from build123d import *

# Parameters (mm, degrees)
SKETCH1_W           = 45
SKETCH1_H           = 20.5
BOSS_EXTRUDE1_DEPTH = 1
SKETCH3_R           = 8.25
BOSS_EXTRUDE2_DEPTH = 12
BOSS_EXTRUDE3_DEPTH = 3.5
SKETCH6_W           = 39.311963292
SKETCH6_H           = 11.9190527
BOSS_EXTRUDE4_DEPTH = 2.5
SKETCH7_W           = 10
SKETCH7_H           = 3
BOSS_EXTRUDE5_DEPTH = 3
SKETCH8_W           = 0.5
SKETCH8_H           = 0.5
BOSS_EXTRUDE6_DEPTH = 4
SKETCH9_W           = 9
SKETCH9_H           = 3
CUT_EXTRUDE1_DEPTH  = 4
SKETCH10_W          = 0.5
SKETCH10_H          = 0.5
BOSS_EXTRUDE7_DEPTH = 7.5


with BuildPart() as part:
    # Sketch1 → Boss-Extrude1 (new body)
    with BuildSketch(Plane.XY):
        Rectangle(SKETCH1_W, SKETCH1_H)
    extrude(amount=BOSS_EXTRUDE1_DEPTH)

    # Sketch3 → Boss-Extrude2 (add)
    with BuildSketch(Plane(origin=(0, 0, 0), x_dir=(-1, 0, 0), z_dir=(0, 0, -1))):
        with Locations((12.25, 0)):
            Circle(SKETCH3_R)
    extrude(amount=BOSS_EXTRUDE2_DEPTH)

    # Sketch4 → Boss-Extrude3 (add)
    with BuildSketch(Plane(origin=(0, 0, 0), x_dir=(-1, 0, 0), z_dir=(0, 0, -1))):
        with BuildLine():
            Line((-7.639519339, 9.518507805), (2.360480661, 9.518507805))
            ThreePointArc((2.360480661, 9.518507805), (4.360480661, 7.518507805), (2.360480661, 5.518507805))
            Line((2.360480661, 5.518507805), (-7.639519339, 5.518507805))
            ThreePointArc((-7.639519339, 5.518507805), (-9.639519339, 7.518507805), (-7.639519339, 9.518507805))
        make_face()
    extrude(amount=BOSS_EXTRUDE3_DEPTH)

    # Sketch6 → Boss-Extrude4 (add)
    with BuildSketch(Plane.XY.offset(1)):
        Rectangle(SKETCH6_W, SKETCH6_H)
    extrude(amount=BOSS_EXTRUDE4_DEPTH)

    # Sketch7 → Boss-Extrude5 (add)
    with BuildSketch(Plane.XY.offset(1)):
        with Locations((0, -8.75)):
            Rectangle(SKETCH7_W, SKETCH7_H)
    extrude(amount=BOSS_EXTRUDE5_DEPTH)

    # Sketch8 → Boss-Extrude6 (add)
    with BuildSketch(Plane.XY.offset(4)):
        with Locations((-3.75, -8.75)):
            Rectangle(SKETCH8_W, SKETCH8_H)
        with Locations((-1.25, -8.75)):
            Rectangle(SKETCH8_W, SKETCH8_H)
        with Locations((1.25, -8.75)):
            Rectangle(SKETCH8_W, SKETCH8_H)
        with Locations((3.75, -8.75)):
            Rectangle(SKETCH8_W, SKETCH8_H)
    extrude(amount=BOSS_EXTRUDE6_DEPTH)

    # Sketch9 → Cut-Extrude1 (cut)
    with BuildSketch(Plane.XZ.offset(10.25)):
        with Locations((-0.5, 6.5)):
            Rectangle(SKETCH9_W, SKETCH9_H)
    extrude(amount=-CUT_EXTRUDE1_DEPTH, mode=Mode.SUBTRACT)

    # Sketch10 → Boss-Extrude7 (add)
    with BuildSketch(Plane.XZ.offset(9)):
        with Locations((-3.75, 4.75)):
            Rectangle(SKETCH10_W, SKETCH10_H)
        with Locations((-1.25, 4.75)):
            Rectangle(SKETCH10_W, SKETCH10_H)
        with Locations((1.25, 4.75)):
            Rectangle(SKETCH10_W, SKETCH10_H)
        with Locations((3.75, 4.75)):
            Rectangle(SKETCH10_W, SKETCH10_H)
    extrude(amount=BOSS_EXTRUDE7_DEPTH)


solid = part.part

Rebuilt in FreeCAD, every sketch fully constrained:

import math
import FreeCAD as App
import Part
import Sketcher

V = App.Vector
Q = App.Units.Quantity

doc = App.newDocument("Part")
body = doc.addObject("PartDesign::Body", "Body")

sketch1 = body.newObject("Sketcher::SketchObject", "Sketch")
sketch1.AttachmentSupport = (doc.getObject("XY_Plane"), [""])
sketch1.MapMode = "FlatFace"
sketch1.addGeometry(Part.LineSegment(V(-22.5, 10.25, 0), V(-22.5, -10.25, 0)), False)
sketch1.addGeometry(Part.LineSegment(V(-22.5, -10.25, 0), V(22.5, -10.25, 0)), False)
sketch1.addGeometry(Part.LineSegment(V(22.5, -10.25, 0), V(22.5, 10.25, 0)), False)
sketch1.addGeometry(Part.LineSegment(V(22.5, 10.25, 0), V(-22.5, 10.25, 0)), False)
sketch1.addConstraint(Sketcher.Constraint("Coincident", 0, 2, 1, 1))
sketch1.addConstraint(Sketcher.Constraint("Coincident", 1, 2, 2, 1))
sketch1.addConstraint(Sketcher.Constraint("Coincident", 2, 2, 3, 1))
sketch1.addConstraint(Sketcher.Constraint("Coincident", 3, 2, 0, 1))
sketch1.addConstraint(Sketcher.Constraint("Vertical", 0))
sketch1.addConstraint(Sketcher.Constraint("Horizontal", 1))
sketch1.addConstraint(Sketcher.Constraint("Vertical", 2))
sketch1.addConstraint(Sketcher.Constraint("Horizontal", 3))
sketch1.addConstraint(Sketcher.Constraint("Symmetric", 0, 2, 2, 2, -1, 1))
sketch1.addConstraint(Sketcher.Constraint("DistanceX", 1, 1, 1, 2, Q("45 mm")))
sketch1.addConstraint(Sketcher.Constraint("DistanceY", 0, 2, 0, 1, Q("20.5 mm")))
pad1 = body.newObject("PartDesign::Pad", "Pad")
pad1.Profile = sketch1
pad1.Length = 1

sketch2 = body.newObject("Sketcher::SketchObject", "Sketch001")
sketch2.AttachmentSupport = (doc.getObject("XY_Plane"), [""])
sketch2.MapMode = "FlatFace"
sketch2.addGeometry(Part.Circle(V(-12.25, 0, 0), V(0, 0, 1), 8.25), False)
sketch2.addConstraint(Sketcher.Constraint("PointOnObject", 0, 3, -1))
sketch2.addConstraint(Sketcher.Constraint("Diameter", 0, Q("16.5 mm")))
sketch2.addConstraint(Sketcher.Constraint("DistanceX", 0, 3, -1, 1, Q("12.25 mm")))
pad2 = body.newObject("PartDesign::Pad", "Pad001")
pad2.Profile = sketch2
pad2.Length = 12
pad2.Reversed = True

sketch3 = body.newObject("Sketcher::SketchObject", "Sketch002")
sketch3.AttachmentSupport = (doc.getObject("XY_Plane"), [""])
sketch3.MapMode = "FlatFace"
sketch3.addGeometry(Part.LineSegment(V(-2.360481, 9.518508, 0), V(7.639519, 9.518508, 0)), False)
sketch3.addGeometry(Part.ArcOfCircle(Part.Circle(V(7.639519, 7.518508, 0), V(0, 0, 1), 2), math.radians(-90), math.radians(90)), False)
sketch3.addGeometry(Part.LineSegment(V(7.639519, 5.518508, 0), V(-2.360481, 5.518508, 0)), False)
sketch3.addGeometry(Part.ArcOfCircle(Part.Circle(V(-2.360481, 7.518508, 0), V(0, 0, 1), 2), math.radians(90), math.radians(270)), False)
sketch3.addConstraint(Sketcher.Constraint("Tangent", 0, 2, 1, 2))
sketch3.addConstraint(Sketcher.Constraint("Tangent", 1, 1, 2, 1))
sketch3.addConstraint(Sketcher.Constraint("Tangent", 2, 2, 3, 2))
sketch3.addConstraint(Sketcher.Constraint("Tangent", 3, 1, 0, 1))
sketch3.addConstraint(Sketcher.Constraint("Horizontal", 0))
sketch3.addConstraint(Sketcher.Constraint("Horizontal", 2))
sketch3.addConstraint(Sketcher.Constraint("Radius", 1, Q("2 mm")))
sketch3.addConstraint(Sketcher.Constraint("DistanceX", 0, 1, 0, 2, Q("10 mm")))
sketch3.addConstraint(Sketcher.Constraint("DistanceX", -1, 1, 1, 3, Q("7.639519 mm")))
sketch3.addConstraint(Sketcher.Constraint("DistanceY", -1, 1, 1, 3, Q("7.518508 mm")))
pad3 = body.newObject("PartDesign::Pad", "Pad002")
pad3.Profile = sketch3
pad3.Length = 3.5
pad3.Reversed = True

sketch4 = body.newObject("Sketcher::SketchObject", "Sketch003")
sketch4.AttachmentSupport = (doc.getObject("XY_Plane"), [""])
sketch4.MapMode = "FlatFace"
sketch4.AttachmentOffset = App.Placement(V(0, 0, 1), App.Rotation())
sketch4.addGeometry(Part.LineSegment(V(-19.655982, 5.959526, 0), V(-19.655982, -5.959526, 0)), False)
sketch4.addGeometry(Part.LineSegment(V(-19.655982, -5.959526, 0), V(19.655982, -5.959526, 0)), False)
sketch4.addGeometry(Part.LineSegment(V(19.655982, -5.959526, 0), V(19.655982, 5.959526, 0)), False)
sketch4.addGeometry(Part.LineSegment(V(19.655982, 5.959526, 0), V(-19.655982, 5.959526, 0)), False)
sketch4.addConstraint(Sketcher.Constraint("Coincident", 0, 2, 1, 1))
sketch4.addConstraint(Sketcher.Constraint("Coincident", 1, 2, 2, 1))
sketch4.addConstraint(Sketcher.Constraint("Coincident", 2, 2, 3, 1))
sketch4.addConstraint(Sketcher.Constraint("Coincident", 3, 2, 0, 1))
sketch4.addConstraint(Sketcher.Constraint("Vertical", 0))
sketch4.addConstraint(Sketcher.Constraint("Horizontal", 1))
sketch4.addConstraint(Sketcher.Constraint("Vertical", 2))
sketch4.addConstraint(Sketcher.Constraint("Horizontal", 3))
sketch4.addConstraint(Sketcher.Constraint("Symmetric", 0, 2, 2, 2, -1, 1))
sketch4.addConstraint(Sketcher.Constraint("DistanceX", 1, 1, 1, 2, Q("39.311963 mm")))
sketch4.addConstraint(Sketcher.Constraint("DistanceY", 0, 2, 0, 1, Q("11.919053 mm")))
pad4 = body.newObject("PartDesign::Pad", "Pad003")
pad4.Profile = sketch4
pad4.Length = 2.5

sketch5 = body.newObject("Sketcher::SketchObject", "Sketch004")
sketch5.AttachmentSupport = (doc.getObject("XY_Plane"), [""])
sketch5.MapMode = "FlatFace"
sketch5.AttachmentOffset = App.Placement(V(0, 0, 1), App.Rotation())
sketch5.addGeometry(Part.LineSegment(V(-5, -7.25, 0), V(-5, -10.25, 0)), False)
sketch5.addGeometry(Part.LineSegment(V(-5, -10.25, 0), V(5, -10.25, 0)), False)
sketch5.addGeometry(Part.LineSegment(V(5, -10.25, 0), V(5, -7.25, 0)), False)
sketch5.addGeometry(Part.LineSegment(V(5, -7.25, 0), V(-5, -7.25, 0)), False)
sketch5.addConstraint(Sketcher.Constraint("Coincident", 0, 2, 1, 1))
sketch5.addConstraint(Sketcher.Constraint("Coincident", 1, 2, 2, 1))
sketch5.addConstraint(Sketcher.Constraint("Coincident", 2, 2, 3, 1))
sketch5.addConstraint(Sketcher.Constraint("Coincident", 3, 2, 0, 1))
sketch5.addConstraint(Sketcher.Constraint("Vertical", 0))
sketch5.addConstraint(Sketcher.Constraint("Horizontal", 1))
sketch5.addConstraint(Sketcher.Constraint("Vertical", 2))
sketch5.addConstraint(Sketcher.Constraint("Horizontal", 3))
sketch5.addConstraint(Sketcher.Constraint("DistanceX", 1, 1, 1, 2, Q("10 mm")))
sketch5.addConstraint(Sketcher.Constraint("DistanceY", 0, 2, 0, 1, Q("3 mm")))
sketch5.addConstraint(Sketcher.Constraint("DistanceX", 0, 2, -1, 1, Q("5 mm")))
sketch5.addConstraint(Sketcher.Constraint("DistanceY", 0, 2, -1, 1, Q("10.25 mm")))
pad5 = body.newObject("PartDesign::Pad", "Pad004")
pad5.Profile = sketch5
pad5.Length = 3

sketch6 = body.newObject("Sketcher::SketchObject", "Sketch005")
sketch6.AttachmentSupport = (doc.getObject("XY_Plane"), [""])
sketch6.MapMode = "FlatFace"
sketch6.AttachmentOffset = App.Placement(V(0, 0, 4), App.Rotation())
sketch6.addGeometry(Part.LineSegment(V(-4, -8.5, 0), V(-4, -9, 0)), False)
sketch6.addGeometry(Part.LineSegment(V(-4, -9, 0), V(-3.5, -9, 0)), False)
sketch6.addGeometry(Part.LineSegment(V(-3.5, -9, 0), V(-3.5, -8.5, 0)), False)
sketch6.addGeometry(Part.LineSegment(V(-3.5, -8.5, 0), V(-4, -8.5, 0)), False)
sketch6.addGeometry(Part.LineSegment(V(-1.5, -8.5, 0), V(-1.5, -9, 0)), False)
sketch6.addGeometry(Part.LineSegment(V(-1.5, -9, 0), V(-1, -9, 0)), False)
sketch6.addGeometry(Part.LineSegment(V(-1, -9, 0), V(-1, -8.5, 0)), False)
sketch6.addGeometry(Part.LineSegment(V(-1, -8.5, 0), V(-1.5, -8.5, 0)), False)
sketch6.addGeometry(Part.LineSegment(V(1, -8.5, 0), V(1, -9, 0)), False)
sketch6.addGeometry(Part.LineSegment(V(1, -9, 0), V(1.5, -9, 0)), False)
sketch6.addGeometry(Part.LineSegment(V(1.5, -9, 0), V(1.5, -8.5, 0)), False)
sketch6.addGeometry(Part.LineSegment(V(1.5, -8.5, 0), V(1, -8.5, 0)), False)
sketch6.addGeometry(Part.LineSegment(V(3.5, -8.5, 0), V(3.5, -9, 0)), False)
sketch6.addGeometry(Part.LineSegment(V(3.5, -9, 0), V(4, -9, 0)), False)
sketch6.addGeometry(Part.LineSegment(V(4, -9, 0), V(4, -8.5, 0)), False)
sketch6.addGeometry(Part.LineSegment(V(4, -8.5, 0), V(3.5, -8.5, 0)), False)
sketch6.addConstraint(Sketcher.Constraint("Coincident", 0, 2, 1, 1))
sketch6.addConstraint(Sketcher.Constraint("Coincident", 1, 2, 2, 1))
sketch6.addConstraint(Sketcher.Constraint("Coincident", 2, 2, 3, 1))
sketch6.addConstraint(Sketcher.Constraint("Coincident", 3, 2, 0, 1))
sketch6.addConstraint(Sketcher.Constraint("Coincident", 4, 2, 5, 1))
sketch6.addConstraint(Sketcher.Constraint("Coincident", 5, 2, 6, 1))
sketch6.addConstraint(Sketcher.Constraint("Coincident", 6, 2, 7, 1))
sketch6.addConstraint(Sketcher.Constraint("Coincident", 7, 2, 4, 1))
sketch6.addConstraint(Sketcher.Constraint("Coincident", 8, 2, 9, 1))
sketch6.addConstraint(Sketcher.Constraint("Coincident", 9, 2, 10, 1))
sketch6.addConstraint(Sketcher.Constraint("Coincident", 10, 2, 11, 1))
sketch6.addConstraint(Sketcher.Constraint("Coincident", 11, 2, 8, 1))
sketch6.addConstraint(Sketcher.Constraint("Coincident", 12, 2, 13, 1))
sketch6.addConstraint(Sketcher.Constraint("Coincident", 13, 2, 14, 1))
sketch6.addConstraint(Sketcher.Constraint("Coincident", 14, 2, 15, 1))
sketch6.addConstraint(Sketcher.Constraint("Coincident", 15, 2, 12, 1))
sketch6.addConstraint(Sketcher.Constraint("Vertical", 0))
sketch6.addConstraint(Sketcher.Constraint("Horizontal", 1))
sketch6.addConstraint(Sketcher.Constraint("Vertical", 2))
sketch6.addConstraint(Sketcher.Constraint("Horizontal", 3))
sketch6.addConstraint(Sketcher.Constraint("Vertical", 4))
sketch6.addConstraint(Sketcher.Constraint("Horizontal", 5))
sketch6.addConstraint(Sketcher.Constraint("Vertical", 6))
sketch6.addConstraint(Sketcher.Constraint("Horizontal", 7))
sketch6.addConstraint(Sketcher.Constraint("Vertical", 8))
sketch6.addConstraint(Sketcher.Constraint("Horizontal", 9))
sketch6.addConstraint(Sketcher.Constraint("Vertical", 10))
sketch6.addConstraint(Sketcher.Constraint("Horizontal", 11))
sketch6.addConstraint(Sketcher.Constraint("Vertical", 12))
sketch6.addConstraint(Sketcher.Constraint("Horizontal", 13))
sketch6.addConstraint(Sketcher.Constraint("Vertical", 14))
sketch6.addConstraint(Sketcher.Constraint("Horizontal", 15))
sketch6.addConstraint(Sketcher.Constraint("Symmetric", 5, 2, 8, 2, -2))
sketch6.addConstraint(Sketcher.Constraint("Symmetric", 7, 2, 10, 2, -2))
sketch6.addConstraint(Sketcher.Constraint("Symmetric", 1, 2, 12, 2, -2))
sketch6.addConstraint(Sketcher.Constraint("Symmetric", 3, 2, 14, 2, -2))
sketch6.addConstraint(Sketcher.Constraint("Horizontal", 1, 2, 4, 2))
sketch6.addConstraint(Sketcher.Constraint("Horizontal", 3, 2, 6, 2))
sketch6.addConstraint(Sketcher.Constraint("Equal", 3, 5))
sketch6.addConstraint(Sketcher.Constraint("Equal", 15, 0))
sketch6.addConstraint(Sketcher.Constraint("DistanceX", 1, 1, 1, 2, Q("0.5 mm")))
sketch6.addConstraint(Sketcher.Constraint("DistanceX", 0, 2, -1, 1, Q("4 mm")))
sketch6.addConstraint(Sketcher.Constraint("DistanceY", 0, 2, -1, 1, Q("9 mm")))
sketch6.addConstraint(Sketcher.Constraint("DistanceX", 5, 2, -1, 1, Q("1 mm")))
pad6 = body.newObject("PartDesign::Pad", "Pad005")
pad6.Profile = sketch6
pad6.Length = 4

sketch7 = body.newObject("Sketcher::SketchObject", "Sketch006")
sketch7.AttachmentSupport = (doc.getObject("XZ_Plane"), [""])
sketch7.MapMode = "FlatFace"
sketch7.AttachmentOffset = App.Placement(V(0, 0, 10.25), App.Rotation())
sketch7.addGeometry(Part.LineSegment(V(-5, 8, 0), V(-5, 5, 0)), False)
sketch7.addGeometry(Part.LineSegment(V(-5, 5, 0), V(4, 5, 0)), False)
sketch7.addGeometry(Part.LineSegment(V(4, 5, 0), V(4, 8, 0)), False)
sketch7.addGeometry(Part.LineSegment(V(4, 8, 0), V(-5, 8, 0)), False)
sketch7.addConstraint(Sketcher.Constraint("Coincident", 0, 2, 1, 1))
sketch7.addConstraint(Sketcher.Constraint("Coincident", 1, 2, 2, 1))
sketch7.addConstraint(Sketcher.Constraint("Coincident", 2, 2, 3, 1))
sketch7.addConstraint(Sketcher.Constraint("Coincident", 3, 2, 0, 1))
sketch7.addConstraint(Sketcher.Constraint("Vertical", 0))
sketch7.addConstraint(Sketcher.Constraint("Horizontal", 1))
sketch7.addConstraint(Sketcher.Constraint("Vertical", 2))
sketch7.addConstraint(Sketcher.Constraint("Horizontal", 3))
sketch7.addConstraint(Sketcher.Constraint("DistanceX", 1, 1, 1, 2, Q("9 mm")))
sketch7.addConstraint(Sketcher.Constraint("DistanceY", 0, 2, 0, 1, Q("3 mm")))
sketch7.addConstraint(Sketcher.Constraint("DistanceX", 0, 2, -1, 1, Q("5 mm")))
sketch7.addConstraint(Sketcher.Constraint("DistanceY", -1, 1, 0, 2, Q("5 mm")))
pocket1 = body.newObject("PartDesign::Pocket", "Pocket")
pocket1.Profile = sketch7
pocket1.Length = 4

sketch8 = body.newObject("Sketcher::SketchObject", "Sketch007")
sketch8.AttachmentSupport = (doc.getObject("XZ_Plane"), [""])
sketch8.MapMode = "FlatFace"
sketch8.AttachmentOffset = App.Placement(V(0, 0, 9), App.Rotation())
sketch8.addGeometry(Part.LineSegment(V(-4, 5, 0), V(-4, 4.5, 0)), False)
sketch8.addGeometry(Part.LineSegment(V(-4, 4.5, 0), V(-3.5, 4.5, 0)), False)
sketch8.addGeometry(Part.LineSegment(V(-3.5, 4.5, 0), V(-3.5, 5, 0)), False)
sketch8.addGeometry(Part.LineSegment(V(-3.5, 5, 0), V(-4, 5, 0)), False)
sketch8.addGeometry(Part.LineSegment(V(-1.5, 5, 0), V(-1.5, 4.5, 0)), False)
sketch8.addGeometry(Part.LineSegment(V(-1.5, 4.5, 0), V(-1, 4.5, 0)), False)
sketch8.addGeometry(Part.LineSegment(V(-1, 4.5, 0), V(-1, 5, 0)), False)
sketch8.addGeometry(Part.LineSegment(V(-1, 5, 0), V(-1.5, 5, 0)), False)
sketch8.addGeometry(Part.LineSegment(V(1, 5, 0), V(1, 4.5, 0)), False)
sketch8.addGeometry(Part.LineSegment(V(1, 4.5, 0), V(1.5, 4.5, 0)), False)
sketch8.addGeometry(Part.LineSegment(V(1.5, 4.5, 0), V(1.5, 5, 0)), False)
sketch8.addGeometry(Part.LineSegment(V(1.5, 5, 0), V(1, 5, 0)), False)
sketch8.addGeometry(Part.LineSegment(V(3.5, 5, 0), V(3.5, 4.5, 0)), False)
sketch8.addGeometry(Part.LineSegment(V(3.5, 4.5, 0), V(4, 4.5, 0)), False)
sketch8.addGeometry(Part.LineSegment(V(4, 4.5, 0), V(4, 5, 0)), False)
sketch8.addGeometry(Part.LineSegment(V(4, 5, 0), V(3.5, 5, 0)), False)
sketch8.addConstraint(Sketcher.Constraint("Coincident", 0, 2, 1, 1))
sketch8.addConstraint(Sketcher.Constraint("Coincident", 1, 2, 2, 1))
sketch8.addConstraint(Sketcher.Constraint("Coincident", 2, 2, 3, 1))
sketch8.addConstraint(Sketcher.Constraint("Coincident", 3, 2, 0, 1))
sketch8.addConstraint(Sketcher.Constraint("Coincident", 4, 2, 5, 1))
sketch8.addConstraint(Sketcher.Constraint("Coincident", 5, 2, 6, 1))
sketch8.addConstraint(Sketcher.Constraint("Coincident", 6, 2, 7, 1))
sketch8.addConstraint(Sketcher.Constraint("Coincident", 7, 2, 4, 1))
sketch8.addConstraint(Sketcher.Constraint("Coincident", 8, 2, 9, 1))
sketch8.addConstraint(Sketcher.Constraint("Coincident", 9, 2, 10, 1))
sketch8.addConstraint(Sketcher.Constraint("Coincident", 10, 2, 11, 1))
sketch8.addConstraint(Sketcher.Constraint("Coincident", 11, 2, 8, 1))
sketch8.addConstraint(Sketcher.Constraint("Coincident", 12, 2, 13, 1))
sketch8.addConstraint(Sketcher.Constraint("Coincident", 13, 2, 14, 1))
sketch8.addConstraint(Sketcher.Constraint("Coincident", 14, 2, 15, 1))
sketch8.addConstraint(Sketcher.Constraint("Coincident", 15, 2, 12, 1))
sketch8.addConstraint(Sketcher.Constraint("Vertical", 0))
sketch8.addConstraint(Sketcher.Constraint("Horizontal", 1))
sketch8.addConstraint(Sketcher.Constraint("Vertical", 2))
sketch8.addConstraint(Sketcher.Constraint("Horizontal", 3))
sketch8.addConstraint(Sketcher.Constraint("Vertical", 4))
sketch8.addConstraint(Sketcher.Constraint("Horizontal", 5))
sketch8.addConstraint(Sketcher.Constraint("Vertical", 6))
sketch8.addConstraint(Sketcher.Constraint("Horizontal", 7))
sketch8.addConstraint(Sketcher.Constraint("Vertical", 8))
sketch8.addConstraint(Sketcher.Constraint("Horizontal", 9))
sketch8.addConstraint(Sketcher.Constraint("Vertical", 10))
sketch8.addConstraint(Sketcher.Constraint("Horizontal", 11))
sketch8.addConstraint(Sketcher.Constraint("Vertical", 12))
sketch8.addConstraint(Sketcher.Constraint("Horizontal", 13))
sketch8.addConstraint(Sketcher.Constraint("Vertical", 14))
sketch8.addConstraint(Sketcher.Constraint("Horizontal", 15))
sketch8.addConstraint(Sketcher.Constraint("Symmetric", 5, 2, 8, 2, -2))
sketch8.addConstraint(Sketcher.Constraint("Symmetric", 7, 2, 10, 2, -2))
sketch8.addConstraint(Sketcher.Constraint("Symmetric", 1, 2, 12, 2, -2))
sketch8.addConstraint(Sketcher.Constraint("Symmetric", 3, 2, 14, 2, -2))
sketch8.addConstraint(Sketcher.Constraint("Horizontal", 1, 2, 4, 2))
sketch8.addConstraint(Sketcher.Constraint("Horizontal", 3, 2, 6, 2))
sketch8.addConstraint(Sketcher.Constraint("Equal", 3, 5))
sketch8.addConstraint(Sketcher.Constraint("Equal", 15, 0))
sketch8.addConstraint(Sketcher.Constraint("DistanceX", 1, 1, 1, 2, Q("0.5 mm")))
sketch8.addConstraint(Sketcher.Constraint("DistanceX", 0, 2, -1, 1, Q("4 mm")))
sketch8.addConstraint(Sketcher.Constraint("DistanceY", -1, 1, 2, 2, Q("5 mm")))
sketch8.addConstraint(Sketcher.Constraint("DistanceX", 5, 2, -1, 1, Q("1 mm")))
pad7 = body.newObject("PartDesign::Pad", "Pad006")
pad7.Profile = sketch8
pad7.Length = 7.5

doc.recompute()
